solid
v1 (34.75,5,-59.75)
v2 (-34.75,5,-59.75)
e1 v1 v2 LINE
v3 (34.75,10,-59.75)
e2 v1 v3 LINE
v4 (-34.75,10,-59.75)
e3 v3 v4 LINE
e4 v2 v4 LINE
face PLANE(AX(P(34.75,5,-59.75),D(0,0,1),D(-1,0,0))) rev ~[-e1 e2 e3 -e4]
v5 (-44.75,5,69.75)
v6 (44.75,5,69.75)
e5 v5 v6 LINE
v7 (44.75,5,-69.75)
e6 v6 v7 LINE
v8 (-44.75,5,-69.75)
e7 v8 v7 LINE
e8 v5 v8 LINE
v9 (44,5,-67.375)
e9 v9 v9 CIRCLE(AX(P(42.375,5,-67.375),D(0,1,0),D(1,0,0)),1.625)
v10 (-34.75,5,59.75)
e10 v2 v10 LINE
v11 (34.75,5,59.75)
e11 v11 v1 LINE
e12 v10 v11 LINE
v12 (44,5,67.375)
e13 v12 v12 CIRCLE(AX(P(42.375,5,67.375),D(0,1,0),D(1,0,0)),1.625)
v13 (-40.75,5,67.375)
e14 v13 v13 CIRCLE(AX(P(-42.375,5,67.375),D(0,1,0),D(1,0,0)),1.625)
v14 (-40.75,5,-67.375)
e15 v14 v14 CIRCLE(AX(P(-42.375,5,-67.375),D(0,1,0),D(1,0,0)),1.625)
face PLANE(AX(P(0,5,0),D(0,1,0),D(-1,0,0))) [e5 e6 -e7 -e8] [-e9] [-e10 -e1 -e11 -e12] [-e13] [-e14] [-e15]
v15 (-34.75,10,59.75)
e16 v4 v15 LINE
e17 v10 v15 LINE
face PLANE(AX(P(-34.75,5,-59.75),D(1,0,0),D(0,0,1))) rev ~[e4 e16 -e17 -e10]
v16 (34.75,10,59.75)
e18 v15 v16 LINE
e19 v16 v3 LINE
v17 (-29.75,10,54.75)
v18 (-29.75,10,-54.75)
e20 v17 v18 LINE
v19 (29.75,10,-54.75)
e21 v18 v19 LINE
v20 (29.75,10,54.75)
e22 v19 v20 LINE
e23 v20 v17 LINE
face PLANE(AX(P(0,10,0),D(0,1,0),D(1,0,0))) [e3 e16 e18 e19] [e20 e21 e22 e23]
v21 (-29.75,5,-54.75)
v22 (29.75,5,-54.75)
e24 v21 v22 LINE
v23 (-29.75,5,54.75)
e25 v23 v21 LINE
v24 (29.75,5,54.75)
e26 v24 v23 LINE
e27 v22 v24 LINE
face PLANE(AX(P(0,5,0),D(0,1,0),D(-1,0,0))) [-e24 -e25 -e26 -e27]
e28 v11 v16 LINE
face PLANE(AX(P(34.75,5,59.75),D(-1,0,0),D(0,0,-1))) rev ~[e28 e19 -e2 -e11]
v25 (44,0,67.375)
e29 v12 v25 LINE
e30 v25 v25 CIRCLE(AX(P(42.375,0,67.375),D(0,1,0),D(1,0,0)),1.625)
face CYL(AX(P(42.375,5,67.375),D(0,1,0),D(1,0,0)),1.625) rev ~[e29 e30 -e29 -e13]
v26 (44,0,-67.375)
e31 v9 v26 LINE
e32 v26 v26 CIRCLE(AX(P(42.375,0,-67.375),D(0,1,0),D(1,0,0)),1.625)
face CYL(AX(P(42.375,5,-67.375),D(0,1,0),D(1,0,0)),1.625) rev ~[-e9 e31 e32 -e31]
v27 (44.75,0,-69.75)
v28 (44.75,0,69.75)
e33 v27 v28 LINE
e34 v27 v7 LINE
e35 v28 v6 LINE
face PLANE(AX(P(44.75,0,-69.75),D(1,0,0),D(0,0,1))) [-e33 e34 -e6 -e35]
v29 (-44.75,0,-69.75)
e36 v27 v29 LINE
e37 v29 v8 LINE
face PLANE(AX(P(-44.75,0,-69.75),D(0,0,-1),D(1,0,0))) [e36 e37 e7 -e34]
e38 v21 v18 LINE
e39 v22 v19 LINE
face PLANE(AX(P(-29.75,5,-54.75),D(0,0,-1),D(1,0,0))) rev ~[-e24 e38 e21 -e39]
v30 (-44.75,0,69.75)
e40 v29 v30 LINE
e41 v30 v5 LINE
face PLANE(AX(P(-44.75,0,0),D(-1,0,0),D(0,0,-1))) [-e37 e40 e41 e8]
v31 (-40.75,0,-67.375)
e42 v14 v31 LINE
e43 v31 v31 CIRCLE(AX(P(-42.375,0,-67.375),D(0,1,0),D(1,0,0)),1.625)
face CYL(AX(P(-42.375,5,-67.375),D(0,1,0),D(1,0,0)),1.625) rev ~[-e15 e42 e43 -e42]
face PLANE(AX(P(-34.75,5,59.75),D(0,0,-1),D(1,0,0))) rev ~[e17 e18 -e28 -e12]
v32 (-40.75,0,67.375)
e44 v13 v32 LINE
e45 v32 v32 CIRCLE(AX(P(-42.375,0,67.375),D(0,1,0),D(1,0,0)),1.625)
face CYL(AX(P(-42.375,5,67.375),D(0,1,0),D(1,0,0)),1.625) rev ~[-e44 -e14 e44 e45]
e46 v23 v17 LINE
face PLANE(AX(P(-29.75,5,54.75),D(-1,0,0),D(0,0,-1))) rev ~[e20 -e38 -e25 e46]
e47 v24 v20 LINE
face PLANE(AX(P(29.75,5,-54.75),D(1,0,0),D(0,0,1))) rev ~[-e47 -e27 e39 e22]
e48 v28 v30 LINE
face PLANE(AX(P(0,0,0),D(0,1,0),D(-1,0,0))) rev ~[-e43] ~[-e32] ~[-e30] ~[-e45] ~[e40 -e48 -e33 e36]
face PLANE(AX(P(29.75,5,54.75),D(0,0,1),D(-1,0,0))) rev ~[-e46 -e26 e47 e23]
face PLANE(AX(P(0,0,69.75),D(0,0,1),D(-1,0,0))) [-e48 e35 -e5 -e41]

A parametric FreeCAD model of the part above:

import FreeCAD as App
import Part
import Sketcher

V = App.Vector
Q = App.Units.Quantity


def add_polygon(sketch, points):
    """Adds a closed chain of lines whose ends are joined by coincident constraints."""
    first, n = sketch.GeometryCount, len(points)
    for a, b in zip(points, points[1:] + points[:1]):
        sketch.addGeometry(Part.LineSegment(App.Vector(*a, 0), App.Vector(*b, 0)), False)
    for i in range(n):
        sketch.addConstraint(Sketcher.Constraint("Coincident", first + i, 2, first + (i + 1) % n, 1))

doc = App.newDocument("Part")
body = doc.addObject("PartDesign::Body", "Body")

# Sketch on XZ plane
sketch1 = doc.addObject("Sketcher::SketchObject", "Sketch")
body.addObject(sketch1)
sketch1.AttachmentSupport = (doc.XZ_Plane, [""])
sketch1.MapMode = "FlatFace"
add_polygon(sketch1, [(-44.75, -69.75), (-44.75, 69.75), (44.75, 69.75), (44.75, -69.75)])  # lines 0-3
sketch1.addConstraint(Sketcher.Constraint("Vertical", 0))
sketch1.addConstraint(Sketcher.Constraint("Horizontal", 1))
sketch1.addConstraint(Sketcher.Constraint("Vertical", 2))
sketch1.addConstraint(Sketcher.Constraint("Horizontal", 3))
sketch1.addConstraint(Sketcher.Constraint("Symmetric", 0, 2, 2, 2, -1, 1))
sketch1.addConstraint(Sketcher.Constraint("DistanceX", 1, 1, 1, 2, Q("89.5 mm")))
sketch1.addConstraint(Sketcher.Constraint("DistanceY", 0, 1, 0, 2, Q("139.5 mm")))
pad1 = doc.addObject("PartDesign::Pad", "Pad")
body.addObject(pad1)
pad1.Profile = sketch1
pad1.Length = 5
pad1.Reversed = True

# Sketch on XZ plane
sketch2 = doc.addObject("Sketcher::SketchObject", "Sketch001")
body.addObject(sketch2)
sketch2.AttachmentSupport = (doc.XZ_Plane, [""])
sketch2.MapMode = "FlatFace"
sketch2.AttachmentOffset = App.Placement(V(0, 0, -5), App.Rotation())
sketch2.addGeometry(Part.Circle(V(-42.375, -67.375, 0), V(0, 0, 1), 1.625), False)
sketch2.addGeometry(Part.Circle(V(42.375, -67.375, 0), V(0, 0, 1), 1.625), False)
sketch2.addGeometry(Part.Circle(V(42.375, 67.375, 0), V(0, 0, 1), 1.625), False)
sketch2.addGeometry(Part.Circle(V(-42.375, 67.375, 0), V(0, 0, 1), 1.625), False)
sketch2.addConstraint(Sketcher.Constraint("Equal", 0, 1))
sketch2.addConstraint(Sketcher.Constraint("Equal", 1, 2))
sketch2.addConstraint(Sketcher.Constraint("Equal", 2, 3))
sketch2.addConstraint(Sketcher.Constraint("Symmetric", 0, 3, 2, 3, -1, 1))
sketch2.addConstraint(Sketcher.Constraint("Symmetric", 1, 3, 3, 3, -1, 1))
sketch2.addConstraint(Sketcher.Constraint("Symmetric", 0, 3, 1, 3, -2))
sketch2.addConstraint(Sketcher.Constraint("Diameter", 0, Q("3.25 mm")))
sketch2.addConstraint(Sketcher.Constraint("DistanceX", 0, 3, 1, 3, Q("84.75 mm")))
sketch2.addConstraint(Sketcher.Constraint("DistanceY", 1, 3, 2, 3, Q("134.75 mm")))
pocket1 = doc.addObject("PartDesign::Pocket", "Pocket")
body.addObject(pocket1)
pocket1.Profile = sketch2
pocket1.Length = 5
pocket1.Reversed = True

# Sketch on XZ plane
sketch3 = doc.addObject("Sketcher::SketchObject", "Sketch002")
body.addObject(sketch3)
sketch3.AttachmentSupport = (doc.XZ_Plane, [""])
sketch3.MapMode = "FlatFace"
sketch3.AttachmentOffset = App.Placement(V(0, 0, -5), App.Rotation())
add_polygon(sketch3, [(-34.75, -59.75), (-34.75, 59.75), (34.75, 59.75), (34.75, -59.75)])  # lines 0-3
add_polygon(sketch3, [(-29.75, 54.75), (-29.75, -54.75), (29.75, -54.75), (29.75, 54.75)])  # lines 4-7
sketch3.addConstraint(Sketcher.Constraint("Vertical", 0))
sketch3.addConstraint(Sketcher.Constraint("Horizontal", 1))
sketch3.addConstraint(Sketcher.Constraint("Vertical", 2))
sketch3.addConstraint(Sketcher.Constraint("Horizontal", 3))
sketch3.addConstraint(Sketcher.Constraint("Vertical", 4))
sketch3.addConstraint(Sketcher.Constraint("Horizontal", 5))
sketch3.addConstraint(Sketcher.Constraint("Vertical", 6))
sketch3.addConstraint(Sketcher.Constraint("Horizontal", 7))
sketch3.addConstraint(Sketcher.Constraint("Symmetric", 0, 2, 2, 2, -1, 1))
sketch3.addConstraint(Sketcher.Constraint("Symmetric", 4, 2, 6, 2, -1, 1))
sketch3.addConstraint(Sketcher.Constraint("DistanceX", 3, 2, 4, 2, Q("5 mm")))
sketch3.addConstraint(Sketcher.Constraint("DistanceY", 3, 2, 4, 2, Q("5 mm")))
sketch3.addConstraint(Sketcher.Constraint("DistanceX", 1, 1, 1, 2, Q("69.5 mm")))
sketch3.addConstraint(Sketcher.Constraint("DistanceY", 0, 1, 0, 2, Q("119.5 mm")))
pad2 = doc.addObject("PartDesign::Pad", "Pad001")
body.addObject(pad2)
pad2.Profile = sketch3
pad2.Length = 5
pad2.Reversed = True

doc.recompute()
